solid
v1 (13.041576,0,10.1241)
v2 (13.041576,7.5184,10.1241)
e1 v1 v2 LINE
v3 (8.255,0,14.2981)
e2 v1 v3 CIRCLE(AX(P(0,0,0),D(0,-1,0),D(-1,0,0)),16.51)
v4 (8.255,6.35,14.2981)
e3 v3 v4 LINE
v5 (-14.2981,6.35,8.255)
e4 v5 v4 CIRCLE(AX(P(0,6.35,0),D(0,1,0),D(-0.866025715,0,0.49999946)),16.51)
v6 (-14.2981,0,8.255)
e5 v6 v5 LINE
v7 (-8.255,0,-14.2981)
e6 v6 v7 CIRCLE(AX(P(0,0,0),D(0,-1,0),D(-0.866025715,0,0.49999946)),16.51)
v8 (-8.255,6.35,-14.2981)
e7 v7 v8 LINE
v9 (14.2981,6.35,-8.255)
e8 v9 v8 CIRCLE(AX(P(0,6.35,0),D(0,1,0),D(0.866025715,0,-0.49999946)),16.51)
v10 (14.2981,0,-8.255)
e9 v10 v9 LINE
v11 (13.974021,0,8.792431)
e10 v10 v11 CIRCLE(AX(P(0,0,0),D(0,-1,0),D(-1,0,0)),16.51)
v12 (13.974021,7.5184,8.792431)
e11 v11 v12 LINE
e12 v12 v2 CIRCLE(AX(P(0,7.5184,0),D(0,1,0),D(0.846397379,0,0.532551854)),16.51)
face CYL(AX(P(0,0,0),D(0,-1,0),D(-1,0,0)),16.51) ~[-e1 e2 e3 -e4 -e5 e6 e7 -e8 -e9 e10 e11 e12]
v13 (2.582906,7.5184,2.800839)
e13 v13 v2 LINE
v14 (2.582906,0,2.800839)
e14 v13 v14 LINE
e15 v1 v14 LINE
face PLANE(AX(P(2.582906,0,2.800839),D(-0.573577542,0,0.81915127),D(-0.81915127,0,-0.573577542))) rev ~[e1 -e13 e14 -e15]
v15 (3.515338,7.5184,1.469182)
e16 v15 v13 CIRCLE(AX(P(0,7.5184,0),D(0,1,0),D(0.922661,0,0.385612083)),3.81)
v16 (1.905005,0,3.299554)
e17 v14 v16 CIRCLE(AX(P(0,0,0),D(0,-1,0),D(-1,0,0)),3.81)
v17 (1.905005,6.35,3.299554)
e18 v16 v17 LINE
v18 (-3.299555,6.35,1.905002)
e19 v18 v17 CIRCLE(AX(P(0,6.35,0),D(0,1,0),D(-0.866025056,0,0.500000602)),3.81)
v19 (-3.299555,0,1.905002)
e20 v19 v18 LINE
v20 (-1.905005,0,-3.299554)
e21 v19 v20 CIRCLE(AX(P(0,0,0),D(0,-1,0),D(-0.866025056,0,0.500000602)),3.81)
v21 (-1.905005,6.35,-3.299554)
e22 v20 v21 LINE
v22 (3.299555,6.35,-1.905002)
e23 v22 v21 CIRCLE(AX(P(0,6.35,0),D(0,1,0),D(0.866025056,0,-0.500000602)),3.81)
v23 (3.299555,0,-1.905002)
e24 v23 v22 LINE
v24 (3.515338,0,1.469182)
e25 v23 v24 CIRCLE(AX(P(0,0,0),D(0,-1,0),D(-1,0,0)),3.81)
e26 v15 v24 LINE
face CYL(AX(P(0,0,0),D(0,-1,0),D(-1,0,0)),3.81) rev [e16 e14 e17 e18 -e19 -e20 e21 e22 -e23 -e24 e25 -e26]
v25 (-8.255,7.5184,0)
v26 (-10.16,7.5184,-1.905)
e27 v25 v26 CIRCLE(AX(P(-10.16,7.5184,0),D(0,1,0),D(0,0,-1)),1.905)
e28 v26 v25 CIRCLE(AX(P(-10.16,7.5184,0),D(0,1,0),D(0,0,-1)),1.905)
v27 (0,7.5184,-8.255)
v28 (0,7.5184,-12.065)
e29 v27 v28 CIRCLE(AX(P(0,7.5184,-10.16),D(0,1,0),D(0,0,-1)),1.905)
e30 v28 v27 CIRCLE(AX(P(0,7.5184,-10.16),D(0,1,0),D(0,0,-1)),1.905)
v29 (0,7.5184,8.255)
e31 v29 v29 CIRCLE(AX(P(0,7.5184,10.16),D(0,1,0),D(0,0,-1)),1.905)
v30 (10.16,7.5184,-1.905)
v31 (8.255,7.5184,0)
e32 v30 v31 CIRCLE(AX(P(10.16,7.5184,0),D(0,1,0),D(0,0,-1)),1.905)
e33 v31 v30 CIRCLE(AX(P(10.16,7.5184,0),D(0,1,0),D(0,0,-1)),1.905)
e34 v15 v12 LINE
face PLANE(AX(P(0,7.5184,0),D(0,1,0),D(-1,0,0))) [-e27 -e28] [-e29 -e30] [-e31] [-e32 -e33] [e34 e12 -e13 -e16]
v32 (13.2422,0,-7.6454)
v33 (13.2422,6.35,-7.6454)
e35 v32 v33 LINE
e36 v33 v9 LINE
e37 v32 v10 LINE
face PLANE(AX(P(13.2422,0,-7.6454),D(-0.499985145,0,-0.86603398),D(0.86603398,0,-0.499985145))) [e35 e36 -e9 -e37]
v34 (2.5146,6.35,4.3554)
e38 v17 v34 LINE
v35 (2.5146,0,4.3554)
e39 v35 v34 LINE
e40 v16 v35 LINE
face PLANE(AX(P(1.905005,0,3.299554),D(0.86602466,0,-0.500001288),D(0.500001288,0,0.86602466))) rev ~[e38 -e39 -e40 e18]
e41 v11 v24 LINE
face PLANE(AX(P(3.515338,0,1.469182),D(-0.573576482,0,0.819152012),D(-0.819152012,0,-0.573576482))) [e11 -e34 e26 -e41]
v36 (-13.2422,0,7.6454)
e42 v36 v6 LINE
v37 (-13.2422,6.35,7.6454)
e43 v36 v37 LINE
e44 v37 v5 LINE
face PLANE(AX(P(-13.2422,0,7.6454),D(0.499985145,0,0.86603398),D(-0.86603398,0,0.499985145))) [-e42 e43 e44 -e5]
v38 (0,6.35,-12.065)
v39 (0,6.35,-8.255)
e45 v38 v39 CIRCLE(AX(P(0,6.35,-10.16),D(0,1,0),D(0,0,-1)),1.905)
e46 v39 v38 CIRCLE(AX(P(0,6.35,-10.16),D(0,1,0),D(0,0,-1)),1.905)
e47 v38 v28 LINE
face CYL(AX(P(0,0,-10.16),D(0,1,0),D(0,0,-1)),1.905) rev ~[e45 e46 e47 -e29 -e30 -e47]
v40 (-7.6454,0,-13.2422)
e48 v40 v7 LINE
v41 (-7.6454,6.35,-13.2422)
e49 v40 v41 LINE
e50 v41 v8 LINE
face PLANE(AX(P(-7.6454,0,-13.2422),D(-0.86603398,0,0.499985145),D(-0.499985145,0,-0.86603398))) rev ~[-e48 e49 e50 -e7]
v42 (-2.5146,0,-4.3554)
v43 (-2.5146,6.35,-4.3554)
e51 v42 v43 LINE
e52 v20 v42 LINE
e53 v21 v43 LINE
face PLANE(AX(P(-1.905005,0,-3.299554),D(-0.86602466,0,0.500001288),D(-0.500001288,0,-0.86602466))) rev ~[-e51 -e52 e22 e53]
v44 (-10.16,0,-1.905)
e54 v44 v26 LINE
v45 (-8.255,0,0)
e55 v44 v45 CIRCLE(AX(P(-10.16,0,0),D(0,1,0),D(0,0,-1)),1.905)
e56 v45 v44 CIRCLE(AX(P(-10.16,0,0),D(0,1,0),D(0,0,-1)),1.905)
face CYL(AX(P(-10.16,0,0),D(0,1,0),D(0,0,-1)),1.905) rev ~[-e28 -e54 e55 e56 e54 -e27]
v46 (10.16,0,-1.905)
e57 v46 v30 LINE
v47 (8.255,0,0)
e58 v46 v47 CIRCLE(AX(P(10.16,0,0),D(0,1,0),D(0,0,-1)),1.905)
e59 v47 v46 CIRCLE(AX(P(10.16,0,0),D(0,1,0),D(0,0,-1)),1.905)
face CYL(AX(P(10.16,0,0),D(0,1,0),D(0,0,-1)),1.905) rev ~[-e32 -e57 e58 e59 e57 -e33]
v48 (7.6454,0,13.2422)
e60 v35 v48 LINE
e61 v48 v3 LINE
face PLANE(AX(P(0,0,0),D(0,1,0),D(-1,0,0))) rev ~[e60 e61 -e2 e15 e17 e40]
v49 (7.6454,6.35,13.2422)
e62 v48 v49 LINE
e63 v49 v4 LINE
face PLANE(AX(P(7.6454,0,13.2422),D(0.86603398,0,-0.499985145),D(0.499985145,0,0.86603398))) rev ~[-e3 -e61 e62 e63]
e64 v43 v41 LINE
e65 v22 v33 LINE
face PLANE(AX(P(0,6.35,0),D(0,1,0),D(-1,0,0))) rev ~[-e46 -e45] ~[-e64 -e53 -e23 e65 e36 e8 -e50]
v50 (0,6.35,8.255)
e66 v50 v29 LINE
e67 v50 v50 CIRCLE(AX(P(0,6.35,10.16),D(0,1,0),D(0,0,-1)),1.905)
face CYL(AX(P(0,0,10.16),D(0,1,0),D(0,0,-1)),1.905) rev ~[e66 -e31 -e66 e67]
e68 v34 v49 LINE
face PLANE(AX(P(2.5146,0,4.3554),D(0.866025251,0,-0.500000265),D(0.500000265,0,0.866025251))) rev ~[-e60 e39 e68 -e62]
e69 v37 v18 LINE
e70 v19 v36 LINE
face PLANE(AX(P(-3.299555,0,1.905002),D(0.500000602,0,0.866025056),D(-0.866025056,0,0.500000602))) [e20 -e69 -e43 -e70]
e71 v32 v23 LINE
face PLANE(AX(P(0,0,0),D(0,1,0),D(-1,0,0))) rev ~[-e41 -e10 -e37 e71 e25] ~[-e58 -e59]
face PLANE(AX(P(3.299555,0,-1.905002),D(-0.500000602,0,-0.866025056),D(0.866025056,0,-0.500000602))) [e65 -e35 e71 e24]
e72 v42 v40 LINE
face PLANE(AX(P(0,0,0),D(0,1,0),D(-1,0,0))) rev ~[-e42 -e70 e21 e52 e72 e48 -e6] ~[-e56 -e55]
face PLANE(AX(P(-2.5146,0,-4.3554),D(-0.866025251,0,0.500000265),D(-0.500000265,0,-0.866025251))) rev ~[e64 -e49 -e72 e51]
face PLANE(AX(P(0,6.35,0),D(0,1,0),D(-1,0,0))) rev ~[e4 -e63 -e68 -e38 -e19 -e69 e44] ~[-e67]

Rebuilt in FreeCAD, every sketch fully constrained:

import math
import FreeCAD as App
import Part
import Sketcher

V = App.Vector
Q = App.Units.Quantity

doc = App.newDocument("Part")
body = doc.addObject("PartDesign::Body", "Body")

sketch1 = doc.addObject("Sketcher::SketchObject", "Sketch")
body.addObject(sketch1)
sketch1.AttachmentSupport = (doc.XZ_Plane, [""])
sketch1.MapMode = "FlatFace"
sketch1.addGeometry([
    Part.Circle(V(0, 0, 0), V(0, 0, 1), 16.5),
    Part.Circle(V(0, 0, 0), V(0, 0, 1), 3.8),
], False)
sketch1.addConstraint([
    Sketcher.Constraint("Coincident", 0, 3, -1, 1),
    Sketcher.Constraint("Coincident", 1, 3, -1, 1),
    Sketcher.Constraint("Diameter", 0, Q("1.3 in")),
    Sketcher.Constraint("Diameter", 1, Q("0.3 in")),
])
pad1 = doc.addObject("PartDesign::Pad", "Pad")
body.addObject(pad1)
pad1.Profile = sketch1
pad1.Length = Q("0.296 in")
pad1.Reversed = True

sketch2 = doc.addObject("Sketcher::SketchObject", "Sketch001")
body.addObject(sketch2)
sketch2.AttachmentSupport = (doc.XZ_Plane, [""])
sketch2.MapMode = "FlatFace"
sketch2.addGeometry([
    Part.LineSegment(V(-3.3, 1.9, 0), V(-13.2, 7.6, 0)),
    Part.LineSegment(V(-13.2, 7.6, 0), V(-14.3, 8.3, 0)),
    Part.ArcOfCircle(Part.Circle(V(0, 0, 0), V(0, 0, 1), 16.5), math.radians(60), math.radians(150)),
    Part.LineSegment(V(8.3, 14.3, 0), V(7.6, 13.2, 0)),
    Part.LineSegment(V(7.6, 13.2, 0), V(2.5, 4.4, 0)),
    Part.LineSegment(V(2.5, 4.4, 0), V(1.9, 3.3, 0)),
    Part.ArcOfCircle(Part.Circle(V(0, 0, 0), V(0, 0, 1), 3.8), math.radians(60), math.radians(150)),
], False)
sketch2.addConstraint([
    Sketcher.Constraint("Coincident", 0, 2, 1, 1),
    Sketcher.Constraint("Coincident", 1, 2, 2, 2),
    Sketcher.Constraint("Coincident", 2, 1, 3, 1),
    Sketcher.Constraint("Coincident", 3, 2, 4, 1),
    Sketcher.Constraint("Coincident", 4, 2, 5, 1),
    Sketcher.Constraint("Coincident", 5, 2, 6, 1),
    Sketcher.Constraint("Coincident", 6, 2, 0, 1),
    Sketcher.Constraint("Coincident", 2, 3, -1, 1),
    Sketcher.Constraint("Coincident", 6, 3, -1, 1),
    Sketcher.Constraint("Parallel", 0, 1),
    Sketcher.Constraint("Perpendicular", 1, 3),
    Sketcher.Constraint("Parallel", 3, 4),
    Sketcher.Constraint("Parallel", 4, 5),
    Sketcher.Constraint("Equal", 1, 3),
    Sketcher.Constraint("Equal", 3, 5),
    Sketcher.Constraint("Radius", 2, Q("0.65 in")),
    Sketcher.Constraint("Radius", 6, Q("0.15 in")),
    Sketcher.Constraint("Angle", 0, Q("150 deg")),
    Sketcher.Constraint("Distance", 0, Q("0.452 in")),
    Sketcher.Constraint("DistanceY", -1, 1, 0, 2, Q("0.301 in")),
    Sketcher.Constraint("DistanceX", -1, 1, 2, 1, Q("0.325 in")),
])
pocket1 = doc.addObject("PartDesign::Pocket", "Pocket")
body.addObject(pocket1)
pocket1.Profile = sketch2
pocket1.Length = Q("0.25 in")

sketch3 = doc.addObject("Sketcher::SketchObject", "Sketch002")
body.addObject(sketch3)
sketch3.AttachmentSupport = (doc.XZ_Plane, [""])
sketch3.MapMode = "FlatFace"
sketch3.addGeometry([
    Part.LineSegment(V(-2.5, -4.4, 0), V(-1.9, -3.3, 0)),
    Part.ArcOfCircle(Part.Circle(V(0, 0, 0), V(0, 0, 1), 3.8), math.radians(-120), math.radians(-30)),
    Part.LineSegment(V(3.3, -1.9, 0), V(13.2, -7.6, 0)),
    Part.LineSegment(V(13.2, -7.6, 0), V(14.3, -8.3, 0)),
    Part.ArcOfCircle(Part.Circle(V(0, 0, 0), V(0, 0, 1), 16.5), math.radians(-120), math.radians(-30)),
    Part.LineSegment(V(-8.3, -14.3, 0), V(-7.6, -13.2, 0)),
    Part.LineSegment(V(-7.6, -13.2, 0), V(-2.5, -4.4, 0)),
], False)
sketch3.addConstraint([
    Sketcher.Constraint("Coincident", 0, 2, 1, 1),
    Sketcher.Constraint("Coincident", 1, 2, 2, 1),
    Sketcher.Constraint("Coincident", 2, 2, 3, 1),
    Sketcher.Constraint("Coincident", 3, 2, 4, 2),
    Sketcher.Constraint("Coincident", 4, 1, 5, 1),
    Sketcher.Constraint("Coincident", 5, 2, 6, 1),
    Sketcher.Constraint("Coincident", 6, 2, 0, 1),
    Sketcher.Constraint("Coincident", 1, 3, -1, 1),
    Sketcher.Constraint("Coincident", 4, 3, -1, 1),
    Sketcher.Constraint("Perpendicular", 0, 2),
    Sketcher.Constraint("Parallel", 2, 3),
    Sketcher.Constraint("Perpendicular", 3, 5),
    Sketcher.Constraint("Parallel", 5, 6),
    Sketcher.Constraint("Equal", 0, 3),
    Sketcher.Constraint("Equal", 3, 5),
    Sketcher.Constraint("Radius", 1, Q("0.15 in")),
    Sketcher.Constraint("Radius", 4, Q("0.65 in")),
    Sketcher.Constraint("Angle", 0, Q("60 deg")),
    Sketcher.Constraint("Distance", 0, Q("0.048 in")),
    Sketcher.Constraint("DistanceX", 0, 2, -1, 1, Q("0.075 in")),
    Sketcher.Constraint("DistanceY", 1, 2, -1, 1, Q("0.075 in")),
])
pocket2 = doc.addObject("PartDesign::Pocket", "Pocket001")
body.addObject(pocket2)
pocket2.Profile = sketch3
pocket2.Length = Q("0.25 in")

sketch4 = doc.addObject("Sketcher::SketchObject", "Sketch003")
body.addObject(sketch4)
sketch4.AttachmentSupport = (doc.XZ_Plane, [""])
sketch4.MapMode = "FlatFace"
sketch4.addGeometry([
    Part.LineSegment(V(1.4, 0, 0), V(0.8, 0, 0)),
    Part.ArcOfCircle(Part.Circle(V(0, 0, 0), V(0, 0, 1), 0.8), math.radians(0), math.radians(60)),
    Part.LineSegment(V(0.4, 0.7, 0), V(1, 1.7, 0)),
    Part.LineSegment(V(1, 1.7, 0), V(13, 10.1, 0)),
    Part.ArcOfCircle(Part.Circle(V(0, 0, 0), V(0, 0, 1), 16.5), math.radians(32.18), math.radians(37.82)),
    Part.LineSegment(V(14, 8.8, 0), V(1.4, 0, 0)),
], False)
sketch4.addConstraint([
    Sketcher.Constraint("Coincident", 0, 2, 1, 1),
    Sketcher.Constraint("Coincident", 1, 2, 2, 1),
    Sketcher.Constraint("Coincident", 2, 2, 3, 1),
    Sketcher.Constraint("Coincident", 3, 2, 4, 2),
    Sketcher.Constraint("Coincident", 4, 1, 5, 1),
    Sketcher.Constraint("Coincident", 5, 2, 0, 1),
    Sketcher.Constraint("Horizontal", 0),
    Sketcher.Constraint("Coincident", 1, 3, -1, 1),
    Sketcher.Constraint("Coincident", 4, 3, -1, 1),
    Sketcher.Constraint("PointOnObject", 0, 2, -1),
    Sketcher.Constraint("Parallel", 3, 5),
    Sketcher.Constraint("Radius", 4, Q("0.65 in")),
    Sketcher.Constraint("Angle", 2, Q("60 deg")),
    Sketcher.Constraint("Angle", 5, Q("-145 deg")),
    Sketcher.Constraint("Radius", 1, Q("0.031248 in")),
    Sketcher.Constraint("DistanceX", -1, 1, 1, 2, Q("0.015626 in")),
    Sketcher.Constraint("DistanceY", 2, 2, 3, 2, Q("0.333 in")),
    Sketcher.Constraint("Distance", 5, Q("0.6035 in")),
])
pocket3 = doc.addObject("PartDesign::Pocket", "Pocket002")
body.addObject(pocket3)
pocket3.Profile = sketch4
pocket3.Length = Q("0.296 in")

sketch5 = doc.addObject("Sketcher::SketchObject", "Sketch004")
body.addObject(sketch5)
sketch5.AttachmentSupport = (doc.XZ_Plane, [""])
sketch5.MapMode = "FlatFace"
sketch5.addGeometry(Part.Circle(V(10.2, 0, 0), V(0, 0, 1), 1.9), False)
sketch5.addConstraint([
    Sketcher.Constraint("PointOnObject", 0, 3, -1),
    Sketcher.Constraint("Diameter", 0, Q("0.15 in")),
    Sketcher.Constraint("DistanceX", -1, 1, 0, 3, Q("0.4 in")),
])
doc.recompute()
hole = doc.addObject("PartDesign::Hole", "Hole")
body.addObject(hole)
hole.Profile = sketch5
hole.ThreadType = "None"
hole.Diameter = Q("0.15 in")
hole.DepthType = "ThroughAll"

sketch6 = doc.addObject("Sketcher::SketchObject", "Sketch005")
body.addObject(sketch6)
sketch6.AttachmentSupport = (doc.XZ_Plane, [""])
sketch6.MapMode = "FlatFace"
sketch6.addGeometry(Part.Circle(V(-10.2, 0, 0), V(0, 0, 1), 1.9), False)
sketch6.addConstraint([
    Sketcher.Constraint("PointOnObject", 0, 3, -1),
    Sketcher.Constraint("Diameter", 0, Q("0.15 in")),
    Sketcher.Constraint("DistanceX", 0, 3, -1, 1, Q("0.4 in")),
])
doc.recompute()
hole2 = doc.addObject("PartDesign::Hole", "Hole001")
body.addObject(hole2)
hole2.Profile = sketch6
hole2.ThreadType = "None"
hole2.Diameter = Q("0.15 in")
hole2.DepthType = "ThroughAll"

sketch7 = doc.addObject("Sketcher::SketchObject", "Sketch006")
body.addObject(sketch7)
sketch7.AttachmentSupport = (doc.XZ_Plane, [""])
sketch7.MapMode = "FlatFace"
sketch7.addGeometry(Part.Circle(V(0, -10.2, 0), V(0, 0, 1), 1.9), False)
sketch7.addConstraint([
    Sketcher.Constraint("PointOnObject", 0, 3, -2),
    Sketcher.Constraint("Diameter", 0, Q("0.15 in")),
    Sketcher.Constraint("DistanceY", 0, 3, -1, 1, Q("0.4 in")),
])
doc.recompute()
hole3 = doc.addObject("PartDesign::Hole", "Hole002")
body.addObject(hole3)
hole3.Profile = sketch7
hole3.ThreadType = "None"
hole3.Diameter = Q("0.15 in")
hole3.DepthType = "ThroughAll"

sketch8 = doc.addObject("Sketcher::SketchObject", "Sketch007")
body.addObject(sketch8)
sketch8.AttachmentSupport = (doc.XZ_Plane, [""])
sketch8.MapMode = "FlatFace"
sketch8.addGeometry(Part.Circle(V(0, 10.2, 0), V(0, 0, 1), 1.9), False)
sketch8.addConstraint([
    Sketcher.Constraint("PointOnObject", 0, 3, -2),
    Sketcher.Constraint("Diameter", 0, Q("0.15 in")),
    Sketcher.Constraint("DistanceY", -1, 1, 0, 3, Q("0.4 in")),
])
doc.recompute()
hole4 = doc.addObject("PartDesign::Hole", "Hole003")
body.addObject(hole4)
hole4.Profile = sketch8
hole4.ThreadType = "None"
hole4.Diameter = Q("0.15 in")
hole4.DepthType = "ThroughAll"

doc.recompute()
